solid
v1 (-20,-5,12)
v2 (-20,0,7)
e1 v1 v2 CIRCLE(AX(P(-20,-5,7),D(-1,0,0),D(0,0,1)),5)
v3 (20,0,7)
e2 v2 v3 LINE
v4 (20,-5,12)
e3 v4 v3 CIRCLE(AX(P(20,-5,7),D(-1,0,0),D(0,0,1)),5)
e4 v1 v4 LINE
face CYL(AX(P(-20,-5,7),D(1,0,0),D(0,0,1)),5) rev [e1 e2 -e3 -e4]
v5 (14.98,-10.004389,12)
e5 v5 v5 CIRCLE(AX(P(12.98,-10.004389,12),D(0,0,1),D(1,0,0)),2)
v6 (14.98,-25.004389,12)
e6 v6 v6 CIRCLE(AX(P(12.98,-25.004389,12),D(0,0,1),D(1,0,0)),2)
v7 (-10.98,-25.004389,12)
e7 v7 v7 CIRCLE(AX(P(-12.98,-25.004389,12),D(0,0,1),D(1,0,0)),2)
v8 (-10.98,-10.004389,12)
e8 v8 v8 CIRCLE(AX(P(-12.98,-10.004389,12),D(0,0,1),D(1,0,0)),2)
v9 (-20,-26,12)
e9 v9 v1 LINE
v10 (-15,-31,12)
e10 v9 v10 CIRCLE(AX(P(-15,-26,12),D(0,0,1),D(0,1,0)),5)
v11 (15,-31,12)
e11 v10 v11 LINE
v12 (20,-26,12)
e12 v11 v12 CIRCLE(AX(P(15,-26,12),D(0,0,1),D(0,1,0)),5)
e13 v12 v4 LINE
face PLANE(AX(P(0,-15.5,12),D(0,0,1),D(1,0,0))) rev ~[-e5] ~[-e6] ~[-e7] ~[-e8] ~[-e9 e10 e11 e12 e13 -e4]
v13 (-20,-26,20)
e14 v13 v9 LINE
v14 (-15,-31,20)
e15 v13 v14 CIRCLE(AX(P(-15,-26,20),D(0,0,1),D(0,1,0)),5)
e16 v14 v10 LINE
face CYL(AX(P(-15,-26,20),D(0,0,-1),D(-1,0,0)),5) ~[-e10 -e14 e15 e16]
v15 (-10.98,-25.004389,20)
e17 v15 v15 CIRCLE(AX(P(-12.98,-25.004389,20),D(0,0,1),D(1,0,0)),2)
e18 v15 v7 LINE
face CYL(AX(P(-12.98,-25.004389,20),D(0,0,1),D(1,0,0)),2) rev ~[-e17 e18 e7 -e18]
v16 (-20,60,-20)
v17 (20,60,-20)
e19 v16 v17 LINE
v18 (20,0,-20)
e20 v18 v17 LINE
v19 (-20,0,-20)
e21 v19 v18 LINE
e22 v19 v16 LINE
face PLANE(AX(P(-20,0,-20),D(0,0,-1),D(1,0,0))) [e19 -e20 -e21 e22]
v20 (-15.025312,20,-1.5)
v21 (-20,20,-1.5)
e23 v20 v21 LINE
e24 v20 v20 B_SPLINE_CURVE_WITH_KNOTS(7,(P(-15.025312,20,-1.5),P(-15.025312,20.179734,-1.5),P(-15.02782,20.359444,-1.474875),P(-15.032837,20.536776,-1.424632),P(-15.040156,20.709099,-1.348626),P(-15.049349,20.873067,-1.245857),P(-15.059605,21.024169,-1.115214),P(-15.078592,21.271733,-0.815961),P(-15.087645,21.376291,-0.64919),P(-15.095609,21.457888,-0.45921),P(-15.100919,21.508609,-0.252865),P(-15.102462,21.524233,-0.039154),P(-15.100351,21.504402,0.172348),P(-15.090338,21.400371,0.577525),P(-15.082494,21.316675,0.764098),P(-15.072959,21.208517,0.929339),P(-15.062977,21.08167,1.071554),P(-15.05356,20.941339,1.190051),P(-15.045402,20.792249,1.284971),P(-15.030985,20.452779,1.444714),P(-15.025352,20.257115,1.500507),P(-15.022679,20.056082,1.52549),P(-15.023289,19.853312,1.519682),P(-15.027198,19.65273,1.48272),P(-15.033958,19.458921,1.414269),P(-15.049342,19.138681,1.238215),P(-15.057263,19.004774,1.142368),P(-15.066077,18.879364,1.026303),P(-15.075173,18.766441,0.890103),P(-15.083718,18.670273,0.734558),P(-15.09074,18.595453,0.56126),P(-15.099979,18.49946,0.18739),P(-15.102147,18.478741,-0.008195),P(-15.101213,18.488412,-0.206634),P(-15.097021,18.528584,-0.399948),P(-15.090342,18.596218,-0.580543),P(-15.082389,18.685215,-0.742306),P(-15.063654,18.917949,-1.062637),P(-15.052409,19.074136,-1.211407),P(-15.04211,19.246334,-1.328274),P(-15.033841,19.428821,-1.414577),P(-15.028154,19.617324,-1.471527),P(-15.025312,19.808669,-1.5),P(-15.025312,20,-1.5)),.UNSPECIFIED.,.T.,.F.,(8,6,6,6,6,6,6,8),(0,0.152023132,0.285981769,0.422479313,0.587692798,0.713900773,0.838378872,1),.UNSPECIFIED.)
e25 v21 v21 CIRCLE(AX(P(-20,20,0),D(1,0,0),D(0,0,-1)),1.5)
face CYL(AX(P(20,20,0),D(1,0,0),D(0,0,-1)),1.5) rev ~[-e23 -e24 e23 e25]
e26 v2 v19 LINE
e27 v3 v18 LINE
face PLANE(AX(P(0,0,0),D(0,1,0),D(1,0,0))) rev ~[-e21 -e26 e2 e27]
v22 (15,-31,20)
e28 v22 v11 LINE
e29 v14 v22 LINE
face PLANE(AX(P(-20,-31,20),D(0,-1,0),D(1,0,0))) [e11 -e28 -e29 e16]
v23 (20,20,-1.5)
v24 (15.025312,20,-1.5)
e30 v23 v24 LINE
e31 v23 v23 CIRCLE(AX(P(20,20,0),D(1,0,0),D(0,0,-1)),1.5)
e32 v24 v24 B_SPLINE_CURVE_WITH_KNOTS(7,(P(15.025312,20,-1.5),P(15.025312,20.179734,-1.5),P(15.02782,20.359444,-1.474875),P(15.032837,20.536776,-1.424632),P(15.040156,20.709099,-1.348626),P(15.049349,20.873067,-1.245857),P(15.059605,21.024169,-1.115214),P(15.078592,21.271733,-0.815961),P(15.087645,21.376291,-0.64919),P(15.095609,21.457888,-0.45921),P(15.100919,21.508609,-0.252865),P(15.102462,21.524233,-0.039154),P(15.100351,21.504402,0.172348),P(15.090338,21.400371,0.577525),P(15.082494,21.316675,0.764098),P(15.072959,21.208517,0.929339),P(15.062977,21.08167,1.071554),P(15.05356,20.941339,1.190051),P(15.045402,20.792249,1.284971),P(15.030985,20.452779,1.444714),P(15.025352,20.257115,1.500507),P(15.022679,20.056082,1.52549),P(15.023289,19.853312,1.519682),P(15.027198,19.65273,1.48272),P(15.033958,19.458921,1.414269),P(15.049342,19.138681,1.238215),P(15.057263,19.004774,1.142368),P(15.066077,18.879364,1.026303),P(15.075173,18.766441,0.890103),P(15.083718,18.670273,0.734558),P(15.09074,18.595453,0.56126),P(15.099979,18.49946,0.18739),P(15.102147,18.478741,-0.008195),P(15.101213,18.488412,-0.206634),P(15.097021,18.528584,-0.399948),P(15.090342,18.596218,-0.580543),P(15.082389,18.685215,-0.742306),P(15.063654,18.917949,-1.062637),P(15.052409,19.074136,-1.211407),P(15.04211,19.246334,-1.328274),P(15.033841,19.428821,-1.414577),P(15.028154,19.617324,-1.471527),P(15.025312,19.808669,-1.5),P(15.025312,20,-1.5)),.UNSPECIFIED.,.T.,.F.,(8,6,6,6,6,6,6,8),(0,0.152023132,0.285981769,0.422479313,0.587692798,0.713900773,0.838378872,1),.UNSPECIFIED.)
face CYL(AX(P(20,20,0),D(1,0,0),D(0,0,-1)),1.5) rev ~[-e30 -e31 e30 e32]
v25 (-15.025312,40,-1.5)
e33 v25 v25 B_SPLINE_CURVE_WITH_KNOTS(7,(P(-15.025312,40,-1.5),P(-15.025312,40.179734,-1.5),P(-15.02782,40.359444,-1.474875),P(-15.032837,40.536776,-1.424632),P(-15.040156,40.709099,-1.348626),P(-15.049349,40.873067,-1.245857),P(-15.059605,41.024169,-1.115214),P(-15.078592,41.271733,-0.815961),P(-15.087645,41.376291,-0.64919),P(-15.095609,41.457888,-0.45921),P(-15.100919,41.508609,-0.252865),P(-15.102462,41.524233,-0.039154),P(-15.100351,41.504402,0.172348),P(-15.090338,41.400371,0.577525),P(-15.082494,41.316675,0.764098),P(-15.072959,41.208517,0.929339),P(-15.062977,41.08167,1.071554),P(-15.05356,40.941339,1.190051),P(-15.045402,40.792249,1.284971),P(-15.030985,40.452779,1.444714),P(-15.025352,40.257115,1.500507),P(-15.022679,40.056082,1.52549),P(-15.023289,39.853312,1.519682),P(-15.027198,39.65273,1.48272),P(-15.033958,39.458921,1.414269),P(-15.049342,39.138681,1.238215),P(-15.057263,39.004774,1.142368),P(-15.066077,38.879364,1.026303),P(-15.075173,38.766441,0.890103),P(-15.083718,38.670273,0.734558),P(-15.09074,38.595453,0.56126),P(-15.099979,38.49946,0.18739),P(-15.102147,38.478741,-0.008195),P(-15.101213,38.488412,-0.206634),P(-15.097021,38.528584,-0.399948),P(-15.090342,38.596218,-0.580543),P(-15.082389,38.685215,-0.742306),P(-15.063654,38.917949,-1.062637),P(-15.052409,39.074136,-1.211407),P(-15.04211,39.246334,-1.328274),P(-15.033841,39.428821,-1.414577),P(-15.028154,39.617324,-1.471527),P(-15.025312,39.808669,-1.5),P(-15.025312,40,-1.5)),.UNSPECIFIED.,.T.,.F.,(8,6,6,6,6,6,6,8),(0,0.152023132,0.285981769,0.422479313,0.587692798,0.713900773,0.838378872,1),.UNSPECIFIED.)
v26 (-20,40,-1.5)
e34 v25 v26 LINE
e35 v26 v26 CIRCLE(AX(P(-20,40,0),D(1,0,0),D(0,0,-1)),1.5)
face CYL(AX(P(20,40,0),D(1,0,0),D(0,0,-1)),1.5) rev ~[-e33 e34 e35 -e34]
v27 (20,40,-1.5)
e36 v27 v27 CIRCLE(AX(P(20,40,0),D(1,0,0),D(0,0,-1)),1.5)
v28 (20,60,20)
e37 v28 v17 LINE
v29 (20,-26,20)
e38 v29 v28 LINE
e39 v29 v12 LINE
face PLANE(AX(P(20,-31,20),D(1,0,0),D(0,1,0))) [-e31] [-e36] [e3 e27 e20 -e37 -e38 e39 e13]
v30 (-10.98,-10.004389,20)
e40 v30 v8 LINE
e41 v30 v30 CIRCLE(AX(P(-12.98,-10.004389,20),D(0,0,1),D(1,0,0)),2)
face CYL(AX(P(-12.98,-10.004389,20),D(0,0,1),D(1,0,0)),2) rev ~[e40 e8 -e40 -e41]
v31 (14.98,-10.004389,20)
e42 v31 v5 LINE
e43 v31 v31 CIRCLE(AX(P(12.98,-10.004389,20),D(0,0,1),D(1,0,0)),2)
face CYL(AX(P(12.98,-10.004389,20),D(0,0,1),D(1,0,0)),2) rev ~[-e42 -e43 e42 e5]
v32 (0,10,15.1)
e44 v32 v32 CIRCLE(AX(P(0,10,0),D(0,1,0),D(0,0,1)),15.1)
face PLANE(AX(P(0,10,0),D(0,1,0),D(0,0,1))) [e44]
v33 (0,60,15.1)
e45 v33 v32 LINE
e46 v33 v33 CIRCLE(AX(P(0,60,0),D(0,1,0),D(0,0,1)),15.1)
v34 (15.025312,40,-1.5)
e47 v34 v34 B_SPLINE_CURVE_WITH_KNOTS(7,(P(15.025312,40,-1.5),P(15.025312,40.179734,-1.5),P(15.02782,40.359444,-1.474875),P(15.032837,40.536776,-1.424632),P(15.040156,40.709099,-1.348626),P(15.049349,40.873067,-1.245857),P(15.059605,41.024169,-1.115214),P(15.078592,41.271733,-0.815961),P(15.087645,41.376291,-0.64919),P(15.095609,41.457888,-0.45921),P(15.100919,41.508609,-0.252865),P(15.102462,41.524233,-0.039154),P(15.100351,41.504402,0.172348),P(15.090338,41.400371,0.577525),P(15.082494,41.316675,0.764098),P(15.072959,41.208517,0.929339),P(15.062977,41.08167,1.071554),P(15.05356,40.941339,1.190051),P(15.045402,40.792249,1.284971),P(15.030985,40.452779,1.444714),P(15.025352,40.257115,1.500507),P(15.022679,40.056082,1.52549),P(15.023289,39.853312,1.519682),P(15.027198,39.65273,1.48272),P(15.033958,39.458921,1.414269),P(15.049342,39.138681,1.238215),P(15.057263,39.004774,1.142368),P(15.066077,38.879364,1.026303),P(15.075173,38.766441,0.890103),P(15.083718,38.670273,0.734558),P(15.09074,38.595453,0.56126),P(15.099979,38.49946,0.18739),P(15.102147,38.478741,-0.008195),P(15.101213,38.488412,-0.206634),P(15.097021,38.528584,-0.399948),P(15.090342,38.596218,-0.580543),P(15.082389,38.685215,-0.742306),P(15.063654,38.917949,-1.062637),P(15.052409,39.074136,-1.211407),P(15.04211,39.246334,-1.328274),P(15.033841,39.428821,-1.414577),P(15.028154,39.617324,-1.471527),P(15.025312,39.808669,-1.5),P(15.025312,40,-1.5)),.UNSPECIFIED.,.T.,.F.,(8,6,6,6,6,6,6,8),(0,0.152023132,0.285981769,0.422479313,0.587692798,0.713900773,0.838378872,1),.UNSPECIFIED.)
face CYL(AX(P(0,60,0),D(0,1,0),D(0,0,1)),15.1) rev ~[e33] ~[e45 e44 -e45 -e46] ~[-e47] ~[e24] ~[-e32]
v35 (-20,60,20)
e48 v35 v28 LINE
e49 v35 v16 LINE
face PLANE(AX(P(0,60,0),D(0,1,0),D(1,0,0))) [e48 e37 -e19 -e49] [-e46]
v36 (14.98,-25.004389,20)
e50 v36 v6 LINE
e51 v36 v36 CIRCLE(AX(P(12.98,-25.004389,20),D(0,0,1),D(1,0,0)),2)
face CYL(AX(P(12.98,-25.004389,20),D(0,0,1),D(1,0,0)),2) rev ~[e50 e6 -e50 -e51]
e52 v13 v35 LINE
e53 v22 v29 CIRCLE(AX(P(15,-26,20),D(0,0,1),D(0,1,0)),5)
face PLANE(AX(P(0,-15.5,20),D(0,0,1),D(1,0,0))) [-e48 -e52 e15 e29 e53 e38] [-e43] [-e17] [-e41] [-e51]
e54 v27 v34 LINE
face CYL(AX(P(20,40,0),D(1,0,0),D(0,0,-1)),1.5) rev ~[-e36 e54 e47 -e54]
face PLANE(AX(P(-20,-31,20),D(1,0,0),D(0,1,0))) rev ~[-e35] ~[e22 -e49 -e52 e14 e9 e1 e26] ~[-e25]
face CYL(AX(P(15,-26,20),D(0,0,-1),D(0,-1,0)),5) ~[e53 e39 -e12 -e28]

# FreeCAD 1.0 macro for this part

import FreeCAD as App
import Part
import Sketcher
Q = App.Units.Quantity


def edges_at(feature, points):
    """Names of the edges that pass closest to the given points."""
    edges = feature.Shape.Edges
    near = lambda p: min(range(len(edges)), key=lambda i: edges[i].distToShape(Part.Vertex(*p))[0])
    return sorted({f"Edge{near(p) + 1}" for p in points})


def add_polygon(sketch, points):
    """Adds a closed chain of lines whose ends are joined by coincident constraints."""
    first, n = sketch.GeometryCount, len(points)
    for a, b in zip(points, points[1:] + points[:1]):
        sketch.addGeometry(Part.LineSegment(App.Vector(*a, 0), App.Vector(*b, 0)), False)
    for i in range(n):
        sketch.addConstraint(Sketcher.Constraint("Coincident", first + i, 2, first + (i + 1) % n, 1))

doc = App.newDocument("Part")
body = doc.addObject("PartDesign::Body", "Body")

# Sketch on XZ plane
sketch1 = body.newObject("Sketcher::SketchObject", "Sketch")
sketch1.AttachmentSupport = (doc.getObject("XZ_Plane"), [""])
sketch1.MapMode = "FlatFace"
add_polygon(sketch1, [(-20, -20), (-20, 20), (20, 20), (20, -20)])  # lines 0-3
sketch1.addConstraint([
    Sketcher.Constraint("Vertical", 0),
    Sketcher.Constraint("Horizontal", 1),
    Sketcher.Constraint("Vertical", 2),
    Sketcher.Constraint("Horizontal", 3),
    Sketcher.Constraint("Symmetric", 0, 2, 2, 2, -1, 1),
    Sketcher.Constraint("Equal", 3, 0),
    Sketcher.Constraint("DistanceX", 1, 1, 1, 2, Q("40 mm")),
])
pad1 = body.newObject("PartDesign::Pad", "Pad")
pad1.Profile = sketch1
pad1.Length = 60
pad1.Reversed = True

# Sketch on XZ plane
sketch2 = body.newObject("Sketcher::SketchObject", "Sketch001")
sketch2.AttachmentSupport = (doc.getObject("XZ_Plane"), [""])
sketch2.MapMode = "FlatFace"
sketch2.AttachmentOffset = App.Placement(App.Vector(0, 0, -60), App.Rotation())
sketch2.addGeometry(Part.Circle(App.Vector(0, 0, 0), App.Vector(0, 0, 1), 15), False)
sketch2.addConstraint([
    Sketcher.Constraint("Coincident", 0, 3, -1, 1),
    Sketcher.Constraint("Diameter", 0, Q("30.2 mm")),
])
pocket1 = body.newObject("PartDesign::Pocket", "Pocket")
pocket1.Profile = sketch2
pocket1.Length = 50
pocket1.Reversed = True

# Sketch on XY plane
sketch3 = body.newObject("Sketcher::SketchObject", "Sketch002")
sketch3.AttachmentSupport = (doc.getObject("XY_Plane"), [""])
sketch3.MapMode = "FlatFace"
sketch3.AttachmentOffset = App.Placement(App.Vector(0, 0, 20), App.Rotation())
add_polygon(sketch3, [(-20, 0), (-20, -31), (20, -31), (20, 0)])  # lines 0-3
sketch3.addGeometry(Part.Circle(App.Vector(-13, -25, 0), App.Vector(0, 0, 1), 2), False)  # 4
sketch3.addGeometry(Part.Circle(App.Vector(13, -25, 0), App.Vector(0, 0, 1), 2), False)  # 5
sketch3.addGeometry(Part.Circle(App.Vector(-13, -10, 0), App.Vector(0, 0, 1), 2), False)  # 6
sketch3.addGeometry(Part.Circle(App.Vector(13, -10, 0), App.Vector(0, 0, 1), 2), False)  # 7
sketch3.addConstraint([
    Sketcher.Constraint("Vertical", 0),
    Sketcher.Constraint("Horizontal", 1),
    Sketcher.Constraint("Vertical", 2),
    Sketcher.Constraint("Horizontal", 3),
    Sketcher.Constraint("Equal", 4, 5),
    Sketcher.Constraint("Equal", 5, 6),
    Sketcher.Constraint("Equal", 6, 7),
    Sketcher.Constraint("Symmetric", 2, 2, 3, 2, -1, 1),
    Sketcher.Constraint("Symmetric", 4, 3, 5, 3, -2),
    Sketcher.Constraint("Symmetric", 6, 3, 7, 3, -2),
    Sketcher.Constraint("Vertical", 4, 3, 6, 3),
    Sketcher.Constraint("Diameter", 4, Q("4 mm")),
    Sketcher.Constraint("DistanceX", 1, 1, 1, 2, Q("40 mm")),
    Sketcher.Constraint("DistanceY", 0, 2, 0, 1, Q("31 mm")),
    Sketcher.Constraint("DistanceY", 4, 3, 6, 3, Q("15 mm")),
    Sketcher.Constraint("DistanceX", 4, 3, -1, 1, Q("12.98 mm")),
    Sketcher.Constraint("DistanceY", 4, 3, -1, 1, Q("25.004389 mm")),
])
pad2 = body.newObject("PartDesign::Pad", "Pad001")
pad2.Profile = sketch3
pad2.Length = 8
pad2.Reversed = True

# Sketch on YZ plane
sketch4 = body.newObject("Sketcher::SketchObject", "Sketch003")
sketch4.AttachmentSupport = (doc.getObject("YZ_Plane"), [""])
sketch4.MapMode = "FlatFace"
sketch4.AttachmentOffset = App.Placement(App.Vector(0, 0, 20), App.Rotation())
sketch4.addGeometry(Part.Circle(App.Vector(20, 0, 0), App.Vector(0, 0, 1), 1.5), False)
sketch4.addConstraint([
    Sketcher.Constraint("PointOnObject", 0, 3, -1),
    Sketcher.Constraint("Diameter", 0, Q("3 mm")),
    Sketcher.Constraint("DistanceX", -1, 1, 0, 3, Q("20 mm")),
])
pocket2 = body.newObject("PartDesign::Pocket", "Pocket001")
pocket2.Profile = sketch4
pocket2.Type = "ThroughAll"
doc.recompute()

linearpattern = body.newObject("PartDesign::LinearPattern", "LinearPattern")
linearpattern.Originals = [pocket2]
linearpattern.Direction = (doc.getObject("Y_Axis"), [""])
linearpattern.Mode = "offset"
linearpattern.Offset = 20
linearpattern.Occurrences = 2
body.Tip = linearpattern
doc.recompute()

fillet = body.newObject("PartDesign::Fillet", "Fillet")
fillet.Base = (linearpattern, edges_at(linearpattern, [(-20, -31, 16), (0, 0, 12), (20, -31, 16)]))
fillet.Radius = 5

doc.recompute()
